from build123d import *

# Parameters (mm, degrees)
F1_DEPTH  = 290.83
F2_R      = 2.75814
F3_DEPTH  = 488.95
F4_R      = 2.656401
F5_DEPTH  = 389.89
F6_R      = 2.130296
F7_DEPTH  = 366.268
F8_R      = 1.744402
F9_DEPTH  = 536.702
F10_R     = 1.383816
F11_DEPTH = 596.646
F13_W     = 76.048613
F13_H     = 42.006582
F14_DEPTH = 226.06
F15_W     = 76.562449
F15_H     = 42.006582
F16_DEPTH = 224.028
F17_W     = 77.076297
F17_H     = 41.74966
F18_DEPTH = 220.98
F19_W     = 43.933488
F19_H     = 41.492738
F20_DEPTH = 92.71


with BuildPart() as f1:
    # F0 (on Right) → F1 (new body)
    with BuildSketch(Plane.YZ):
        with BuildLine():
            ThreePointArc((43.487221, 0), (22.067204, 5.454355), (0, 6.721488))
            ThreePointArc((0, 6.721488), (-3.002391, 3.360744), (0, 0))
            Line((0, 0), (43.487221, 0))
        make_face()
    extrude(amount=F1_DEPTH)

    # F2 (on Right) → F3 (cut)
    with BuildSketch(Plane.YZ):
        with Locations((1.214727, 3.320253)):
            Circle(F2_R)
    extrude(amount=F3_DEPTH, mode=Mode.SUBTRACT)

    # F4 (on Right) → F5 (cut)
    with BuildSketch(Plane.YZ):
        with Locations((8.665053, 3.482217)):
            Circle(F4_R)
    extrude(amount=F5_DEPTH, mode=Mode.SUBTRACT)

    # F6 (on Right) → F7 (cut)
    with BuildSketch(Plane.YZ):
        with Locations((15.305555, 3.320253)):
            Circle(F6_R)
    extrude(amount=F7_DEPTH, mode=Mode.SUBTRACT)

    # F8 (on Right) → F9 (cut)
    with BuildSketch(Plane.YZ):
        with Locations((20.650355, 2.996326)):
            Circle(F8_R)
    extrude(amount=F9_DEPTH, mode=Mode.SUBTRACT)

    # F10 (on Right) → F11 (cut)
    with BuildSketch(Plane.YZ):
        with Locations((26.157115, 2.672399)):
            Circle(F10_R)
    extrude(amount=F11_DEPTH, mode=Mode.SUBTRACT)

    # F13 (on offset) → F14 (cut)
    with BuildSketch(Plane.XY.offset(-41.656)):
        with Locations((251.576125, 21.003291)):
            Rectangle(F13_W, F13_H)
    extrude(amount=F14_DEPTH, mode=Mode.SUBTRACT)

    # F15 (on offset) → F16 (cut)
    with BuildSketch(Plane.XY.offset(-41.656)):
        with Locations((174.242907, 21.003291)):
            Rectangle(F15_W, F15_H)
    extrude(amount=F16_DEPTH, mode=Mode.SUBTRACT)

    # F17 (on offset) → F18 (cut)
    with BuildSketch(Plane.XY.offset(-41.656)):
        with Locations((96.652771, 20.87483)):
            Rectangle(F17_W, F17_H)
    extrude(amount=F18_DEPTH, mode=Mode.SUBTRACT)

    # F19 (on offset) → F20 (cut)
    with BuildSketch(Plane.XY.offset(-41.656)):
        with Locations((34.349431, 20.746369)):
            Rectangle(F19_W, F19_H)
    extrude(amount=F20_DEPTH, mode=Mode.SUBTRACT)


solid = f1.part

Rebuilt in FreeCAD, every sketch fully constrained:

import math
import FreeCAD as App
import Part
import Sketcher

V = App.Vector
Q = App.Units.Quantity

doc = App.newDocument("Part")
body = doc.addObject("PartDesign::Body", "Body")

# Sketch on YZ plane
sketch1 = doc.addObject("Sketcher::SketchObject", "Sketch")
body.addObject(sketch1)
sketch1.AttachmentSupport = (doc.YZ_Plane, [""])
sketch1.MapMode = "FlatFace"
sketch1.addGeometry([
    Part.ArcOfCircle(Part.Circle(V(4.5, -108.5, 0), V(0, 0, 1), 115.3), math.radians(70), math.radians(92)),
    Part.ArcOfCircle(Part.Circle(V(0.4, 3.4, 0), V(0, 0, 1), 3.4), math.radians(96), math.radians(264)),
    Part.LineSegment(V(0, 0, 0), V(43.5, 0, 0)),
], False)
sketch1.addConstraint([
    Sketcher.Constraint("Coincident", 0, 2, 1, 1),
    Sketcher.Constraint("Coincident", 1, 2, 2, 1),
    Sketcher.Constraint("Coincident", 2, 2, 0, 1),
    Sketcher.Constraint("Horizontal", 2),
    Sketcher.Constraint("Coincident", 1, 2, -1, 1),
    Sketcher.Constraint("PointOnObject", 0, 2, -2),
    Sketcher.Constraint("Radius", 1, 3.38213),
    Sketcher.Constraint("Radius", 0, 115.311254),
    Sketcher.Constraint("DistanceX", 2, 1, 2, 2, 43.487221),
    Sketcher.Constraint("DistanceY", 0, 3, -1, 1, 108.503731),
])
pad1 = doc.addObject("PartDesign::Pad", "Pad")
body.addObject(pad1)
pad1.Profile = sketch1
pad1.Length = Q("11.45 in")

# Sketch on YZ plane
sketch2 = doc.addObject("Sketcher::SketchObject", "Sketch001")
body.addObject(sketch2)
sketch2.AttachmentSupport = (doc.YZ_Plane, [""])
sketch2.MapMode = "FlatFace"
sketch2.addGeometry(Part.Circle(V(1.2, 3.3, 0), V(0, 0, 1), 2.8), False)
sketch2.addConstraint([
    Sketcher.Constraint("Diameter", 0, 5.51628),
    Sketcher.Constraint("DistanceX", -1, 1, 0, 3, 1.214727),
    Sketcher.Constraint("DistanceY", -1, 1, 0, 3, 3.320253),
])
pocket1 = doc.addObject("PartDesign::Pocket", "Pocket")
body.addObject(pocket1)
pocket1.Profile = sketch2
pocket1.Length = Q("19.25 in")
pocket1.Reversed = True

# Sketch on YZ plane
sketch3 = doc.addObject("Sketcher::SketchObject", "Sketch002")
body.addObject(sketch3)
sketch3.AttachmentSupport = (doc.YZ_Plane, [""])
sketch3.MapMode = "FlatFace"
sketch3.addGeometry(Part.Circle(V(8.7, 3.5, 0), V(0, 0, 1), 2.7), False)
sketch3.addConstraint([
    Sketcher.Constraint("Diameter", 0, 5.312802),
    Sketcher.Constraint("DistanceX", -1, 1, 0, 3, 8.665053),
    Sketcher.Constraint("DistanceY", -1, 1, 0, 3, 3.482217),
])
pocket2 = doc.addObject("PartDesign::Pocket", "Pocket001")
body.addObject(pocket2)
pocket2.Profile = sketch3
pocket2.Length = Q("15.35 in")
pocket2.Reversed = True

# Sketch on YZ plane
sketch4 = doc.addObject("Sketcher::SketchObject", "Sketch003")
body.addObject(sketch4)
sketch4.AttachmentSupport = (doc.YZ_Plane, [""])
sketch4.MapMode = "FlatFace"
sketch4.addGeometry(Part.Circle(V(15.3, 3.3, 0), V(0, 0, 1), 2.1), False)
sketch4.addConstraint([
    Sketcher.Constraint("Diameter", 0, 4.260592),
    Sketcher.Constraint("DistanceX", -1, 1, 0, 3, 15.305555),
    Sketcher.Constraint("DistanceY", -1, 1, 0, 3, 3.320253),
])
pocket3 = doc.addObject("PartDesign::Pocket", "Pocket002")
body.addObject(pocket3)
pocket3.Profile = sketch4
pocket3.Length = Q("14.42 in")
pocket3.Reversed = True

# Sketch on YZ plane
sketch5 = doc.addObject("Sketcher::SketchObject", "Sketch004")
body.addObject(sketch5)
sketch5.AttachmentSupport = (doc.YZ_Plane, [""])
sketch5.MapMode = "FlatFace"
sketch5.addGeometry(Part.Circle(V(20.7, 3, 0), V(0, 0, 1), 1.7), False)
sketch5.addConstraint([
    Sketcher.Constraint("Diameter", 0, 3.488804),
    Sketcher.Constraint("DistanceX", -1, 1, 0, 3, 20.650355),
    Sketcher.Constraint("DistanceY", -1, 1, 0, 3, 2.996326),
])
pocket4 = doc.addObject("PartDesign::Pocket", "Pocket003")
body.addObject(pocket4)
pocket4.Profile = sketch5
pocket4.Length = Q("21.13 in")
pocket4.Reversed = True

# Sketch on YZ plane
sketch6 = doc.addObject("Sketcher::SketchObject", "Sketch005")
body.addObject(sketch6)
sketch6.AttachmentSupport = (doc.YZ_Plane, [""])
sketch6.MapMode = "FlatFace"
sketch6.addGeometry(Part.Circle(V(26.2, 2.7, 0), V(0, 0, 1), 1.4), False)
sketch6.addConstraint([
    Sketcher.Constraint("Diameter", 0, 2.767632),
    Sketcher.Constraint("DistanceY", -1, 1, 0, 3, 2.672399),
    Sketcher.Constraint("DistanceX", -1, 1, 0, 3, 26.157115),
])
pocket5 = doc.addObject("PartDesign::Pocket", "Pocket004")
body.addObject(pocket5)
pocket5.Profile = sketch6
pocket5.Length = Q("23.49 in")
pocket5.Reversed = True

# Sketch on XY plane
sketch7 = doc.addObject("Sketcher::SketchObject", "Sketch006")
body.addObject(sketch7)
sketch7.AttachmentSupport = (doc.XY_Plane, [""])
sketch7.MapMode = "FlatFace"
sketch7.AttachmentOffset = App.Placement(V(0, 0, -1.64 * 25.4), App.Rotation())
sketch7.addGeometry([
    Part.LineSegment(V(214, 42, 0), V(214, 0, 0)),
    Part.LineSegment(V(214, 0, 0), V(290, 0, 0)),
    Part.LineSegment(V(290, 0, 0), V(290, 42, 0)),
    Part.LineSegment(V(290, 42, 0), V(214, 42, 0)),
], False)
sketch7.addConstraint([
    Sketcher.Constraint("Coincident", 0, 2, 1, 1),
    Sketcher.Constraint("Coincident", 1, 2, 2, 1),
    Sketcher.Constraint("Coincident", 2, 2, 3, 1),
    Sketcher.Constraint("Coincident", 3, 2, 0, 1),
    Sketcher.Constraint("Vertical", 0),
    Sketcher.Constraint("Horizontal", 1),
    Sketcher.Constraint("Vertical", 2),
    Sketcher.Constraint("Horizontal", 3),
    Sketcher.Constraint("PointOnObject", 0, 2, -1),
    Sketcher.Constraint("DistanceX", 1, 1, 1, 2, 76.048613),
    Sketcher.Constraint("DistanceY", 0, 2, 0, 1, 42.006582),
    Sketcher.Constraint("DistanceX", -1, 1, 0, 2, 213.551818),
])
pocket6 = doc.addObject("PartDesign::Pocket", "Pocket005")
body.addObject(pocket6)
pocket6.Profile = sketch7
pocket6.Length = Q("8.9 in")
pocket6.Reversed = True

# Sketch on XY plane
sketch8 = doc.addObject("Sketcher::SketchObject", "Sketch007")
body.addObject(sketch8)
sketch8.AttachmentSupport = (doc.XY_Plane, [""])
sketch8.MapMode = "FlatFace"
sketch8.AttachmentOffset = App.Placement(V(0, 0, -1.64 * 25.4), App.Rotation())
sketch8.addGeometry([
    Part.LineSegment(V(136, 42, 0), V(136, 0, 0)),
    Part.LineSegment(V(136, 0, 0), V(213, 0, 0)),
    Part.LineSegment(V(213, 0, 0), V(213, 42, 0)),
    Part.LineSegment(V(213, 42, 0), V(136, 42, 0)),
], False)
sketch8.addConstraint([
    Sketcher.Constraint("Coincident", 0, 2, 1, 1),
    Sketcher.Constraint("Coincident", 1, 2, 2, 1),
    Sketcher.Constraint("Coincident", 2, 2, 3, 1),
    Sketcher.Constraint("Coincident", 3, 2, 0, 1),
    Sketcher.Constraint("Vertical", 0),
    Sketcher.Constraint("Horizontal", 1),
    Sketcher.Constraint("Vertical", 2),
    Sketcher.Constraint("Horizontal", 3),
    Sketcher.Constraint("PointOnObject", 0, 2, -1),
    Sketcher.Constraint("DistanceX", 1, 1, 1, 2, 76.562449),
    Sketcher.Constraint("DistanceY", 0, 2, 0, 1, 42.006582),
    Sketcher.Constraint("DistanceX", -1, 1, 1, 2, 212.524132),
])
pocket7 = doc.addObject("PartDesign::Pocket", "Pocket006")
body.addObject(pocket7)
pocket7.Profile = sketch8
pocket7.Length = Q("8.82 in")
pocket7.Reversed = True

# Sketch on XY plane
sketch9 = doc.addObject("Sketcher::SketchObject", "Sketch008")
body.addObject(sketch9)
sketch9.AttachmentSupport = (doc.XY_Plane, [""])
sketch9.MapMode = "FlatFace"
sketch9.AttachmentOffset = App.Placement(V(0, 0, -1.64 * 25.4), App.Rotation())
sketch9.addGeometry([
    Part.LineSegment(V(58, 42, 0), V(58, 0, 0)),
    Part.LineSegment(V(58, 0, 0), V(135, 0, 0)),
    Part.LineSegment(V(135, 0, 0), V(135, 42, 0)),
    Part.LineSegment(V(135, 42, 0), V(58, 42, 0)),
], False)
sketch9.addConstraint([
    Sketcher.Constraint("Coincident", 0, 2, 1, 1),
    Sketcher.Constraint("Coincident", 1, 2, 2, 1),
    Sketcher.Constraint("Coincident", 2, 2, 3, 1),
    Sketcher.Constraint("Coincident", 3, 2, 0, 1),
    Sketcher.Constraint("Vertical", 0),
    Sketcher.Constraint("Horizontal", 1),
    Sketcher.Constraint("Vertical", 2),
    Sketcher.Constraint("Horizontal", 3),
    Sketcher.Constraint("PointOnObject", 0, 2, -1),
    Sketcher.Constraint("DistanceX", 1, 1, 1, 2, Q("3.0344999 in")),
    Sketcher.Constraint("DistanceY", 0, 2, 0, 1, 41.74966),
    Sketcher.Constraint("DistanceX", -1, 1, 1, 2, 135.19092),
])
pocket8 = doc.addObject("PartDesign::Pocket", "Pocket007")
body.addObject(pocket8)
pocket8.Profile = sketch9
pocket8.Length = Q("8.7 in")
pocket8.Reversed = True

# Sketch on XY plane
sketch10 = doc.addObject("Sketcher::SketchObject", "Sketch009")
body.addObject(sketch10)
sketch10.AttachmentSupport = (doc.XY_Plane, [""])
sketch10.MapMode = "FlatFace"
sketch10.AttachmentOffset = App.Placement(V(0, 0, -1.64 * 25.4), App.Rotation())
sketch10.addGeometry([
    Part.LineSegment(V(12, 41, 0), V(12, 0, 0)),
    Part.LineSegment(V(12, 0, 0), V(56, 0, 0)),
    Part.LineSegment(V(56, 0, 0), V(56, 41, 0)),
    Part.LineSegment(V(56, 41, 0), V(12, 41, 0)),
], False)
sketch10.addConstraint([
    Sketcher.Constraint("Coincident", 0, 2, 1, 1),
    Sketcher.Constraint("Coincident", 1, 2, 2, 1),
    Sketcher.Constraint("Coincident", 2, 2, 3, 1),
    Sketcher.Constraint("Coincident", 3, 2, 0, 1),
    Sketcher.Constraint("Vertical", 0),
    Sketcher.Constraint("Horizontal", 1),
    Sketcher.Constraint("Vertical", 2),
    Sketcher.Constraint("Horizontal", 3),
    Sketcher.Constraint("PointOnObject", 0, 2, -1),
    Sketcher.Constraint("DistanceY", 0, 2, 0, 1, 41.492738),
    Sketcher.Constraint("DistanceX", 1, 1, 1, 2, 43.933488),
    Sketcher.Constraint("DistanceX", -1, 1, 0, 2, 12.382687),
])
pocket9 = doc.addObject("PartDesign::Pocket", "Pocket008")
body.addObject(pocket9)
pocket9.Profile = sketch10
pocket9.Length = Q("3.65 in")
pocket9.Reversed = True

doc.recompute()
